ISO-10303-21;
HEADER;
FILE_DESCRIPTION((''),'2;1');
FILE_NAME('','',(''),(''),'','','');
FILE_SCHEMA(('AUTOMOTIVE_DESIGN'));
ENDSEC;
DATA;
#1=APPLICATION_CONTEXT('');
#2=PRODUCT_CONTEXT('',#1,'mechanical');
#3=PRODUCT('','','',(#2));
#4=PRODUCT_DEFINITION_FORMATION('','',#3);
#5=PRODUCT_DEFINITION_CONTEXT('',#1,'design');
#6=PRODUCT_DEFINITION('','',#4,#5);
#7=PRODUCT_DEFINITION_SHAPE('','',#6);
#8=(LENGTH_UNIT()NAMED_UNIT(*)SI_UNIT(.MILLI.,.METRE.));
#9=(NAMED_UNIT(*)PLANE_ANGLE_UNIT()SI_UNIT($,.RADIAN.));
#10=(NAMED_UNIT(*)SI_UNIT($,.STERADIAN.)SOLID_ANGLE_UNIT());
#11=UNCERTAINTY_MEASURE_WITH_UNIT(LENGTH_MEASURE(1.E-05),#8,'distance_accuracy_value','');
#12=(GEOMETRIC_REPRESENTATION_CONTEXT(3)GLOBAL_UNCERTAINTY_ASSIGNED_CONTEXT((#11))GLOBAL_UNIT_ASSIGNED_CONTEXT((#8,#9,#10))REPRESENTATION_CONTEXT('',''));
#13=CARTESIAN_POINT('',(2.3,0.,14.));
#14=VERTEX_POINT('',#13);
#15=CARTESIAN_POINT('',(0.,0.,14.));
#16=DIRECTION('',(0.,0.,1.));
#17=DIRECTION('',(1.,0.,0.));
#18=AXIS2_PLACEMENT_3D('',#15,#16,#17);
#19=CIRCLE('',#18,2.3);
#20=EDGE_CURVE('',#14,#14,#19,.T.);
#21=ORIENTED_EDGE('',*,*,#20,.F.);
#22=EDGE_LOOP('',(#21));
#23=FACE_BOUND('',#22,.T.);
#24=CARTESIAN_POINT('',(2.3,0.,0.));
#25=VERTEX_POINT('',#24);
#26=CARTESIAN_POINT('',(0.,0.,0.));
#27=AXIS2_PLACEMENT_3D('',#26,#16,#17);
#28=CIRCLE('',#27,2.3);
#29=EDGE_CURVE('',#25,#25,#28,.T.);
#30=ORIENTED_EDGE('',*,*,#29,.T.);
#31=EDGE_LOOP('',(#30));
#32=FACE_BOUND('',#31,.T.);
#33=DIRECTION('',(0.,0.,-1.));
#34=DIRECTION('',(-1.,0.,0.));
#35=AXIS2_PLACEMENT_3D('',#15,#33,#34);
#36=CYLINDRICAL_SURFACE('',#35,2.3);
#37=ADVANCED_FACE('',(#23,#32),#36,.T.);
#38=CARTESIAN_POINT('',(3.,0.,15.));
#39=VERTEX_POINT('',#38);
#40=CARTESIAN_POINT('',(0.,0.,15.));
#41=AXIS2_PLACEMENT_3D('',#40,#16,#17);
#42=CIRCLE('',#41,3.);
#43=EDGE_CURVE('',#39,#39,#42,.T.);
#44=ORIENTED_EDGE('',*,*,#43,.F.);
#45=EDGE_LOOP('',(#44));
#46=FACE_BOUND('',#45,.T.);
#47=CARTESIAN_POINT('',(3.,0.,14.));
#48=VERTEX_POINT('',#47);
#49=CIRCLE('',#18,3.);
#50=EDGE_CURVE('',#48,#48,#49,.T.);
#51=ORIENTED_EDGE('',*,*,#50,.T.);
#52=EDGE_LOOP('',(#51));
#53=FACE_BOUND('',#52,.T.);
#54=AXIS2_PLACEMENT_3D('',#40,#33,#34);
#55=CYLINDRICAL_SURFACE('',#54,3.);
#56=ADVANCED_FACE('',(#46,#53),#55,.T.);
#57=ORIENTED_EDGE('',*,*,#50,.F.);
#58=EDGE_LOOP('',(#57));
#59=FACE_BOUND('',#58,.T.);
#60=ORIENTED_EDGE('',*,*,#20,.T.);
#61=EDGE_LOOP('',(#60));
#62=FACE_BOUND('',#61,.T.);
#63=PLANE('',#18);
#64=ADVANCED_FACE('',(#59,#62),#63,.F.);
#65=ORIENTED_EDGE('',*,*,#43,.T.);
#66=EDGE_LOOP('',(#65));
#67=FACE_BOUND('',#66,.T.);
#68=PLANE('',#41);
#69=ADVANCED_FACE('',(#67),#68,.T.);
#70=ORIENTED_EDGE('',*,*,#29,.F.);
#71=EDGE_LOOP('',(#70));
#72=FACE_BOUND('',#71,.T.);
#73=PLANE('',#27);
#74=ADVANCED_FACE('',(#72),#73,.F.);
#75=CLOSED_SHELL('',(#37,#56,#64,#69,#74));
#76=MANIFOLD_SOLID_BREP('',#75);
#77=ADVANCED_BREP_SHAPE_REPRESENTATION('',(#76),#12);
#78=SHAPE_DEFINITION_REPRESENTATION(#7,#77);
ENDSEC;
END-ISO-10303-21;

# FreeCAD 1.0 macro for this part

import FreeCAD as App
import Part
import Sketcher
from FreeCAD import Vector
Q = App.Units.Quantity

doc = App.newDocument("Part")
params = doc.addObject("Spreadsheet::Sheet", "Params")
for row, (alias, value) in enumerate([
    ("sketch1_diameter", "4.6 mm"),
    ("pad1_length", "14 mm"),
    ("sketch2_diameter", "6 mm"),
    ("pad2_length", "1 mm"),
], start=1):
    params.set(f"A{row}", alias)
    params.set(f"B{row}", "=" + value)
    params.setAlias(f"B{row}", alias)

body = doc.addObject("PartDesign::Body", "Body")

# Sketch on XY plane
sketch1 = body.newObject("Sketcher::SketchObject", "Sketch")
sketch1.AttachmentSupport = (doc.getObject("XY_Plane"), [""])
sketch1.MapMode = "FlatFace"
sketch1.addGeometry(Part.Circle(Vector(0, 0, 0), Vector(0, 0, 1), 2.3), False)
sketch1.addConstraint([
    Sketcher.Constraint("Coincident", 0, 3, -1, 1),
    Sketcher.Constraint("Diameter", 0, Q("4.6 mm")),
])
sketch1.setExpression("Constraints[1]", "Params.sketch1_diameter")
pad1 = body.newObject("PartDesign::Pad", "Pad")
pad1.Profile = sketch1
pad1.setExpression("Length", "Params.pad1_length")

# Sketch on XY plane
sketch2 = body.newObject("Sketcher::SketchObject", "Sketch001")
sketch2.AttachmentSupport = (doc.getObject("XY_Plane"), [""])
sketch2.MapMode = "FlatFace"
sketch2.AttachmentOffset = App.Placement(Vector(0, 0, 14), App.Rotation())
sketch2.addGeometry(Part.Circle(Vector(0, 0, 0), Vector(0, 0, 1), 3), False)
sketch2.addConstraint([
    Sketcher.Constraint("Coincident", 0, 3, -1, 1),
    Sketcher.Constraint("Diameter", 0, Q("6 mm")),
])
sketch2.setExpression("Constraints[1]", "Params.sketch2_diameter")
pad2 = body.newObject("PartDesign::Pad", "Pad001")
pad2.Profile = sketch2
pad2.setExpression("Length", "Params.pad2_length")

doc.recompute()
